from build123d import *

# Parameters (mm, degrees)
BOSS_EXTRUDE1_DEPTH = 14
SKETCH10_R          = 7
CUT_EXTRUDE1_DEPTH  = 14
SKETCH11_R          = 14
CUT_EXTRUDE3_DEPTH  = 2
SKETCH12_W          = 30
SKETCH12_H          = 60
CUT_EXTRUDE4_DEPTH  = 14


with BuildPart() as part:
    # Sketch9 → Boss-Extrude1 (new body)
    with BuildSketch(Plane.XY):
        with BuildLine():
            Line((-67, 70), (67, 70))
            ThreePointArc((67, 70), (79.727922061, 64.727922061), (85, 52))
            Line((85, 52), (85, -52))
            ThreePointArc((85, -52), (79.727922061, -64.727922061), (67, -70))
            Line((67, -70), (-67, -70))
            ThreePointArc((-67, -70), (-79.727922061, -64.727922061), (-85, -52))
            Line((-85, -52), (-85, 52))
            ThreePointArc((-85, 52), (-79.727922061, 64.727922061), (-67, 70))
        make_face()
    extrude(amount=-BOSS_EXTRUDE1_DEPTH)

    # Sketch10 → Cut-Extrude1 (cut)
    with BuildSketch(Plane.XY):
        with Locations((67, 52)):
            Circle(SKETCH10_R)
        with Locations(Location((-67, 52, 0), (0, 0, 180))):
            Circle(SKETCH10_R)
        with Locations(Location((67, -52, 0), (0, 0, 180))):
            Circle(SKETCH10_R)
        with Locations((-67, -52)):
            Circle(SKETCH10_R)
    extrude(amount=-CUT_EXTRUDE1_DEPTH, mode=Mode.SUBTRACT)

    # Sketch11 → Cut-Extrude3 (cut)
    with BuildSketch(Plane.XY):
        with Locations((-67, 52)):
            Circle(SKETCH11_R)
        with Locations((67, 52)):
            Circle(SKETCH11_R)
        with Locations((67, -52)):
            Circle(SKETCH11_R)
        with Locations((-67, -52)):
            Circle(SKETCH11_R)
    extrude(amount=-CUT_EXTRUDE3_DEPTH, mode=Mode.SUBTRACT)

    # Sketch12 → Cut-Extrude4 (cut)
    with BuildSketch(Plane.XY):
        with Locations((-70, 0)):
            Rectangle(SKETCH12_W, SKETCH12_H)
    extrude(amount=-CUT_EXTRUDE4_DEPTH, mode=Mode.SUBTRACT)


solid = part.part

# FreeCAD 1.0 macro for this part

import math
import FreeCAD as App
import Part
import Sketcher

V = App.Vector


def add_polygon(sketch, points):
    """Adds a closed chain of lines whose ends are joined by coincident constraints."""
    first, n = sketch.GeometryCount, len(points)
    for a, b in zip(points, points[1:] + points[:1]):
        sketch.addGeometry(Part.LineSegment(App.Vector(*a, 0), App.Vector(*b, 0)), False)
    for i in range(n):
        sketch.addConstraint(Sketcher.Constraint("Coincident", first + i, 2, first + (i + 1) % n, 1))

doc = App.newDocument("Part")
body = doc.addObject("PartDesign::Body", "Body")

# Sketch on XY plane
sketch1 = body.newObject("Sketcher::SketchObject", "Sketch")
sketch1.AttachmentSupport = (doc.getObject("XY_Plane"), [""])
sketch1.MapMode = "FlatFace"
sketch1.addGeometry(Part.LineSegment(V(67, 70, 0), V(-67, 70, 0)), False)
sketch1.addGeometry(Part.ArcOfCircle(Part.Circle(V(-67, 52, 0), V(0, 0, 1), 18), math.radians(90), math.radians(180)), False)
sketch1.addGeometry(Part.LineSegment(V(-85, 52, 0), V(-85, -52, 0)), False)
sketch1.addGeometry(Part.ArcOfCircle(Part.Circle(V(-67, -52, 0), V(0, 0, 1), 18), math.radians(-180), math.radians(-90)), False)
sketch1.addGeometry(Part.LineSegment(V(-67, -70, 0), V(67, -70, 0)), False)
sketch1.addGeometry(Part.ArcOfCircle(Part.Circle(V(67, -52, 0), V(0, 0, 1), 18), math.radians(-90), math.radians(0)), False)
sketch1.addGeometry(Part.LineSegment(V(85, -52, 0), V(85, 52, 0)), False)
sketch1.addGeometry(Part.ArcOfCircle(Part.Circle(V(67, 52, 0), V(0, 0, 1), 18), math.radians(0), math.radians(90)), False)
sketch1.addConstraint(Sketcher.Constraint("Tangent", 0, 2, 1, 1))
sketch1.addConstraint(Sketcher.Constraint("Tangent", 1, 2, 2, 1))
sketch1.addConstraint(Sketcher.Constraint("Tangent", 2, 2, 3, 1))
sketch1.addConstraint(Sketcher.Constraint("Tangent", 3, 2, 4, 1))
sketch1.addConstraint(Sketcher.Constraint("Tangent", 4, 2, 5, 1))
sketch1.addConstraint(Sketcher.Constraint("Tangent", 5, 2, 6, 1))
sketch1.addConstraint(Sketcher.Constraint("Tangent", 6, 2, 7, 1))
sketch1.addConstraint(Sketcher.Constraint("Tangent", 7, 2, 0, 1))
sketch1.addConstraint(Sketcher.Constraint("Horizontal", 0))
sketch1.addConstraint(Sketcher.Constraint("Vertical", 2))
sketch1.addConstraint(Sketcher.Constraint("Horizontal", 4))
sketch1.addConstraint(Sketcher.Constraint("Vertical", 6))
sketch1.addConstraint(Sketcher.Constraint("Equal", 1, 3))
sketch1.addConstraint(Sketcher.Constraint("Equal", 3, 5))
sketch1.addConstraint(Sketcher.Constraint("Equal", 5, 7))
sketch1.addConstraint(Sketcher.Constraint("Symmetric", 1, 3, 5, 3, -1, 1))
sketch1.addConstraint(Sketcher.Constraint("Radius", 1, 18.0))
sketch1.addConstraint(Sketcher.Constraint("DistanceX", 0, 2, 0, 1, 134.0))
sketch1.addConstraint(Sketcher.Constraint("DistanceY", 2, 2, 2, 1, 104.0))
pad1 = body.newObject("PartDesign::Pad", "Pad")
pad1.Profile = sketch1
pad1.Length = 14
pad1.Reversed = True

# Sketch on XY plane
sketch2 = body.newObject("Sketcher::SketchObject", "Sketch001")
sketch2.AttachmentSupport = (doc.getObject("XY_Plane"), [""])
sketch2.MapMode = "FlatFace"
sketch2.addGeometry(Part.Circle(V(67, 52, 0), V(0, 0, 1), 7), False)
sketch2.addGeometry(Part.Circle(V(-67, 52, 0), V(0, 0, 1), 7), False)
sketch2.addGeometry(Part.Circle(V(67, -52, 0), V(0, 0, 1), 7), False)
sketch2.addGeometry(Part.Circle(V(-67, -52, 0), V(0, 0, 1), 7), False)
sketch2.addConstraint(Sketcher.Constraint("Equal", 0, 1))
sketch2.addConstraint(Sketcher.Constraint("Equal", 1, 2))
sketch2.addConstraint(Sketcher.Constraint("Equal", 2, 3))
sketch2.addConstraint(Sketcher.Constraint("Symmetric", 1, 3, 2, 3, -1, 1))
sketch2.addConstraint(Sketcher.Constraint("Symmetric", 0, 3, 3, 3, -1, 1))
sketch2.addConstraint(Sketcher.Constraint("Symmetric", 0, 3, 1, 3, -2))
sketch2.addConstraint(Sketcher.Constraint("Diameter", 0, 14.0))
sketch2.addConstraint(Sketcher.Constraint("DistanceX", -1, 1, 0, 3, 67.0))
sketch2.addConstraint(Sketcher.Constraint("DistanceY", -1, 1, 0, 3, 52.0))
pocket1 = body.newObject("PartDesign::Pocket", "Pocket")
pocket1.Profile = sketch2
pocket1.Length = 14

# Sketch on XY plane
sketch3 = body.newObject("Sketcher::SketchObject", "Sketch002")
sketch3.AttachmentSupport = (doc.getObject("XY_Plane"), [""])
sketch3.MapMode = "FlatFace"
sketch3.addGeometry(Part.Circle(V(-67, 52, 0), V(0, 0, 1), 14), False)
sketch3.addGeometry(Part.Circle(V(67, 52, 0), V(0, 0, 1), 14), False)
sketch3.addGeometry(Part.Circle(V(67, -52, 0), V(0, 0, 1), 14), False)
sketch3.addGeometry(Part.Circle(V(-67, -52, 0), V(0, 0, 1), 14), False)
sketch3.addConstraint(Sketcher.Constraint("Equal", 0, 1))
sketch3.addConstraint(Sketcher.Constraint("Equal", 1, 2))
sketch3.addConstraint(Sketcher.Constraint("Equal", 2, 3))
sketch3.addConstraint(Sketcher.Constraint("Symmetric", 0, 3, 2, 3, -1, 1))
sketch3.addConstraint(Sketcher.Constraint("Symmetric", 1, 3, 3, 3, -1, 1))
sketch3.addConstraint(Sketcher.Constraint("Symmetric", 0, 3, 1, 3, -2))
sketch3.addConstraint(Sketcher.Constraint("Diameter", 0, 28.0))
sketch3.addConstraint(Sketcher.Constraint("DistanceX", 0, 3, -1, 1, 67.0))
sketch3.addConstraint(Sketcher.Constraint("DistanceY", -1, 1, 0, 3, 52.0))
pocket2 = body.newObject("PartDesign::Pocket", "Pocket001")
pocket2.Profile = sketch3
pocket2.Length = 2

# Sketch on XY plane
sketch4 = body.newObject("Sketcher::SketchObject", "Sketch003")
sketch4.AttachmentSupport = (doc.getObject("XY_Plane"), [""])
sketch4.MapMode = "FlatFace"
add_polygon(sketch4, [(-85, 30), (-85, -30), (-55, -30), (-55, 30)])  # lines 0-3
sketch4.addConstraint(Sketcher.Constraint("Vertical", 0))
sketch4.addConstraint(Sketcher.Constraint("Horizontal", 1))
sketch4.addConstraint(Sketcher.Constraint("Vertical", 2))
sketch4.addConstraint(Sketcher.Constraint("Horizontal", 3))
sketch4.addConstraint(Sketcher.Constraint("DistanceX", 1, 1, 1, 2, 30.0))
sketch4.addConstraint(Sketcher.Constraint("DistanceY", 0, 2, 0, 1, 60.0))
sketch4.addConstraint(Sketcher.Constraint("DistanceX", 0, 2, -1, 1, 85.0))
sketch4.addConstraint(Sketcher.Constraint("DistanceY", 0, 2, -1, 1, 30.0))
pocket3 = body.newObject("PartDesign::Pocket", "Pocket002")
pocket3.Profile = sketch4
pocket3.Length = 14

doc.recompute()
